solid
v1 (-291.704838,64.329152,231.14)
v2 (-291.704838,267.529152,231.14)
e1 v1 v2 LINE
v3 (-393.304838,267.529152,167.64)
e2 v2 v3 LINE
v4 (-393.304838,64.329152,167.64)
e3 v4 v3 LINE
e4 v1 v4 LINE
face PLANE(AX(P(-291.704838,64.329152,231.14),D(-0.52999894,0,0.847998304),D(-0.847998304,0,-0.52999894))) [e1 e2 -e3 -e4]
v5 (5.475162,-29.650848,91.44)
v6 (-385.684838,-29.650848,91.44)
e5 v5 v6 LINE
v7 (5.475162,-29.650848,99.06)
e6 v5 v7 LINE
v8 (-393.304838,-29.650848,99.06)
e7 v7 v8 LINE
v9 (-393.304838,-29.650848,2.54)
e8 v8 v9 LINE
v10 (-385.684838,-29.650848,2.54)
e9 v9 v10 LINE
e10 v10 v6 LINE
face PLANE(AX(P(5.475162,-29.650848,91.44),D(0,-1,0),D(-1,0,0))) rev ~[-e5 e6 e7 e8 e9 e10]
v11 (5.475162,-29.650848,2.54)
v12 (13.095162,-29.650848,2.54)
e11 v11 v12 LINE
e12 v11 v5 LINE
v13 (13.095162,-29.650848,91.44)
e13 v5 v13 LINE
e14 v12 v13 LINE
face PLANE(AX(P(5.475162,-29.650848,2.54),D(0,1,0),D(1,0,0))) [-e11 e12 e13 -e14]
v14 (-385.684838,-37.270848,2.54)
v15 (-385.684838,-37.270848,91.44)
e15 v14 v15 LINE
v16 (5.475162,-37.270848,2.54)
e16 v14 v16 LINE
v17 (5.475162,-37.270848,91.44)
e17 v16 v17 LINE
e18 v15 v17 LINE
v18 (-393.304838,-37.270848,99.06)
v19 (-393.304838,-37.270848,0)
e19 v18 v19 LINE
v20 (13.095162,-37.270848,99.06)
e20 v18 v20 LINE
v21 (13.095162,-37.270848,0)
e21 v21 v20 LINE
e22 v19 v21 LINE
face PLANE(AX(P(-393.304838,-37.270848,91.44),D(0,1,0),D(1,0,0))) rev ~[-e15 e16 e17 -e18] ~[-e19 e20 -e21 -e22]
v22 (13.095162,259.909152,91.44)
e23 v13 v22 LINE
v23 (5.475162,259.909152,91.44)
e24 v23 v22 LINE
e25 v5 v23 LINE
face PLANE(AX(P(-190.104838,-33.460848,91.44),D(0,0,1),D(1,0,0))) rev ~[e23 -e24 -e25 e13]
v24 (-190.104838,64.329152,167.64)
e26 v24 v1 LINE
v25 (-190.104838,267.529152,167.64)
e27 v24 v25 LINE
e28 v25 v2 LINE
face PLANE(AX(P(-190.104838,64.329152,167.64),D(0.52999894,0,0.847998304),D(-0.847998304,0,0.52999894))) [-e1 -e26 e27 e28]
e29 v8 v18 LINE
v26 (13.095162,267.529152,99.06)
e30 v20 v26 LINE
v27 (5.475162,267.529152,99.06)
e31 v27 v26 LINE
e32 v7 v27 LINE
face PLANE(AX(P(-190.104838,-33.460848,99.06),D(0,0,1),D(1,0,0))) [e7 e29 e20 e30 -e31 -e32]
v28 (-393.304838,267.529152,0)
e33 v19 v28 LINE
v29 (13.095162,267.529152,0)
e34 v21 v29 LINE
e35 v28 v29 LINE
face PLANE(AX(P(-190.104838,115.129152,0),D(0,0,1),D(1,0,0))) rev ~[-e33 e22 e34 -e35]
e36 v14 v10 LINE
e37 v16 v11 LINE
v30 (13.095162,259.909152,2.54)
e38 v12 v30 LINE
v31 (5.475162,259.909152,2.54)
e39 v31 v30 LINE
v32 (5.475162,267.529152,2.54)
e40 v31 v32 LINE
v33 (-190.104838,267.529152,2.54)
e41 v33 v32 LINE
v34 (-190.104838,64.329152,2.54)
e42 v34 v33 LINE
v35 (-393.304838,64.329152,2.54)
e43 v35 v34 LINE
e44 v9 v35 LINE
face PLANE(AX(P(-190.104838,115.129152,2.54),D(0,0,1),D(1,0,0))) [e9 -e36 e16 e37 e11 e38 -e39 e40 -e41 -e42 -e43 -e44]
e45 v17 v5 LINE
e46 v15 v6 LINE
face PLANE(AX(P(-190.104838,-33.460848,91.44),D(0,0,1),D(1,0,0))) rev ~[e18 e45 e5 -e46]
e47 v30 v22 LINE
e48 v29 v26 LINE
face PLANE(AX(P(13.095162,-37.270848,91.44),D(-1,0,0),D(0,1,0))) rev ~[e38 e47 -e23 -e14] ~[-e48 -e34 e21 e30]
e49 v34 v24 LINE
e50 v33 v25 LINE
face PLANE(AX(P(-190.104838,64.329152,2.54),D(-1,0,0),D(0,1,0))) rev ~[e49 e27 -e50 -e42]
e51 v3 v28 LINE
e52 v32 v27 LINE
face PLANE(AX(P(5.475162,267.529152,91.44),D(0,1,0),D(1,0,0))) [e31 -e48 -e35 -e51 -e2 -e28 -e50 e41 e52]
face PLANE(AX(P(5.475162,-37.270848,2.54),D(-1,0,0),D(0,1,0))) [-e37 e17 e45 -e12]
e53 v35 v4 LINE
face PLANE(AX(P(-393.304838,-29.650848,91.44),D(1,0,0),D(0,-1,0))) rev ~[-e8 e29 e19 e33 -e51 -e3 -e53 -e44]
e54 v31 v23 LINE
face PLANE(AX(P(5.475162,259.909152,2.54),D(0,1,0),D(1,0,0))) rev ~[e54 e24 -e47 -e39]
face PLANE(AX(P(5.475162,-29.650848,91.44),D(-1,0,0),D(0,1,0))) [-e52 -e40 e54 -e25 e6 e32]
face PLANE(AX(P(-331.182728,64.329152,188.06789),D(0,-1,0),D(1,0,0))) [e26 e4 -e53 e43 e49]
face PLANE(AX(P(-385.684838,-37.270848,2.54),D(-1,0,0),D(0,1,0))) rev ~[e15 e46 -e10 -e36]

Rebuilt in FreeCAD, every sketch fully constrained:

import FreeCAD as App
import Part
import Sketcher
Q = App.Units.Quantity


def add_polygon(sketch, points):
    """Adds a closed chain of lines whose ends are joined by coincident constraints."""
    first, n = sketch.GeometryCount, len(points)
    for a, b in zip(points, points[1:] + points[:1]):
        sketch.addGeometry(Part.LineSegment(App.Vector(*a, 0), App.Vector(*b, 0)), False)
    for i in range(n):
        sketch.addConstraint(Sketcher.Constraint("Coincident", first + i, 2, first + (i + 1) % n, 1))

doc = App.newDocument("Part")
body = doc.addObject("PartDesign::Body", "Body")

sketch1 = body.newObject("Sketcher::SketchObject", "Sketch")
sketch1.AttachmentSupport = (doc.getObject("XY_Plane"), [""])
sketch1.MapMode = "FlatFace"
add_polygon(sketch1, [(-393.304838, 267.529152), (-393.304838, -37.270848), (13.095162, -37.270848), (13.095162, 267.529152)])
sketch1.addConstraint([
    Sketcher.Constraint("Vertical", 0),
    Sketcher.Constraint("Horizontal", 1),
    Sketcher.Constraint("Vertical", 2),
    Sketcher.Constraint("Horizontal", 3),
    Sketcher.Constraint("DistanceX", 1, 1, 1, 2, Q("16 in")),
    Sketcher.Constraint("DistanceY", 0, 2, 0, 1, Q("12 in")),
    Sketcher.Constraint("DistanceX", 0, 2, -1, 1, 393.304838),
    Sketcher.Constraint("DistanceY", -1, 1, 2, 2, 267.529152),
])
pad1 = body.newObject("PartDesign::Pad", "Pad")
pad1.Profile = sketch1
pad1.Length = Q("0.1 in")

sketch2 = body.newObject("Sketcher::SketchObject", "Sketch001")
sketch2.AttachmentSupport = (doc.getObject("XY_Plane"), [""])
sketch2.MapMode = "FlatFace"
sketch2.AttachmentOffset = App.Placement(App.Vector(0, 0, 0.1 * 25.4), App.Rotation())
add_polygon(sketch2, [(-393.304838, -29.650848), (-393.304838, -37.270848), (-385.684838, -37.270848), (-385.684838, -29.650848)])
add_polygon(sketch2, [(5.475162, -29.650848), (5.475162, -37.270848), (13.095162, -37.270848), (13.095162, -29.650848)])
add_polygon(sketch2, [(5.475162, 267.529152), (5.475162, 259.909152), (13.095162, 259.909152), (13.095162, 267.529152)])
sketch2.addConstraint([
    Sketcher.Constraint("Vertical", 0),
    Sketcher.Constraint("Horizontal", 1),
    Sketcher.Constraint("Vertical", 2),
    Sketcher.Constraint("Horizontal", 3),
    Sketcher.Constraint("Vertical", 4),
    Sketcher.Constraint("Horizontal", 5),
    Sketcher.Constraint("Vertical", 6),
    Sketcher.Constraint("Horizontal", 7),
    Sketcher.Constraint("Vertical", 8),
    Sketcher.Constraint("Horizontal", 9),
    Sketcher.Constraint("Vertical", 10),
    Sketcher.Constraint("Horizontal", 11),
    Sketcher.Constraint("Horizontal", 1, 2, 4, 2),
    Sketcher.Constraint("Horizontal", 3, 2, 6, 2),
    Sketcher.Constraint("Vertical", 7, 2, 8, 2),
    Sketcher.Constraint("Vertical", 6, 2, 9, 2),
    Sketcher.Constraint("Equal", 3, 5),
    Sketcher.Constraint("Equal", 11, 0),
    Sketcher.Constraint("Equal", 6, 8),
    Sketcher.Constraint("DistanceX", 1, 1, 1, 2, Q("0.3 in")),
    Sketcher.Constraint("DistanceX", 0, 2, 5, 2, Q("16 in")),
    Sketcher.Constraint("DistanceY", 5, 2, 10, 2, Q("12 in")),
    Sketcher.Constraint("DistanceX", 0, 2, -1, 1, 393.304838),
    Sketcher.Constraint("DistanceY", 2, 2, -1, 1, 29.650848),
])
pad2 = body.newObject("PartDesign::Pad", "Pad001")
pad2.Profile = sketch2
pad2.Length = Q("3.5 in")

sketch3 = body.newObject("Sketcher::SketchObject", "Sketch002")
sketch3.AttachmentSupport = (doc.getObject("XY_Plane"), [""])
sketch3.MapMode = "FlatFace"
sketch3.AttachmentOffset = App.Placement(App.Vector(0, 0, 0.1 * 25.4), App.Rotation())
add_polygon(sketch3, [(-393.304838, 267.529152), (-393.304838, 64.329152), (-190.104838, 64.329152), (-190.104838, 267.529152)])
sketch3.addConstraint([
    Sketcher.Constraint("Vertical", 0),
    Sketcher.Constraint("Horizontal", 1),
    Sketcher.Constraint("Vertical", 2),
    Sketcher.Constraint("Horizontal", 3),
    Sketcher.Constraint("Equal", 3, 0),
    Sketcher.Constraint("DistanceX", 1, 1, 1, 2, Q("8 in")),
    Sketcher.Constraint("DistanceX", 0, 2, -1, 1, 393.304838),
    Sketcher.Constraint("DistanceY", -1, 1, 0, 2, 64.329152),
])
pad3 = body.newObject("PartDesign::Pad", "Pad002")
pad3.Profile = sketch3
pad3.Length = Q("6.5 in")

sketch4 = body.newObject("Sketcher::SketchObject", "Sketch003")
sketch4.AttachmentSupport = (doc.getObject("XZ_Plane"), [""])
sketch4.MapMode = "FlatFace"
sketch4.AttachmentOffset = App.Placement(App.Vector(0, 0, -64.329152), App.Rotation())
add_polygon(sketch4, [(-291.704838, 231.14), (-393.304838, 167.64), (-190.104838, 167.64)])
sketch4.addConstraint([
    Sketcher.Constraint("Horizontal", 1),
    Sketcher.Constraint("Equal", 0, 2),
    Sketcher.Constraint("DistanceX", 1, 1, 1, 2, Q("8 in")),
    Sketcher.Constraint("DistanceY", -1, 1, 0, 2, Q("6.6 in")),
    Sketcher.Constraint("DistanceY", -1, 1, 2, 2, Q("9.1 in")),
    Sketcher.Constraint("DistanceX", 0, 2, -1, 1, 393.304838),
])
pad4 = body.newObject("PartDesign::Pad", "Pad003")
pad4.Profile = sketch4
pad4.Length = Q("8 in")
pad4.Reversed = True

sketch5 = body.newObject("Sketcher::SketchObject", "Sketch004")
sketch5.AttachmentSupport = (doc.getObject("XY_Plane"), [""])
sketch5.MapMode = "FlatFace"
sketch5.AttachmentOffset = App.Placement(App.Vector(0, 0, 3.6 * 25.4), App.Rotation())
add_polygon(sketch5, [(-393.304838, -37.270848), (13.095162, -37.270848), (13.095162, 267.529152), (5.475162, 267.529152), (5.475162, -29.650848), (-393.304838, -29.650848)])
sketch5.addConstraint([
    Sketcher.Constraint("Horizontal", 0),
    Sketcher.Constraint("Vertical", 1),
    Sketcher.Constraint("Horizontal", 2),
    Sketcher.Constraint("Vertical", 3),
    Sketcher.Constraint("Horizontal", 4),
    Sketcher.Constraint("Vertical", 5),
    Sketcher.Constraint("Equal", 2, 5),
    Sketcher.Constraint("DistanceX", 0, 1, 0, 2, Q("16 in")),
    Sketcher.Constraint("DistanceY", 1, 1, 1, 2, Q("12 in")),
    Sketcher.Constraint("DistanceX", 2, 2, 2, 1, Q("0.3 in")),
    Sketcher.Constraint("DistanceY", -1, 1, 1, 2, 267.529152),
    Sketcher.Constraint("DistanceX", 4, 2, -1, 1, 393.304838),
])
pad5 = body.newObject("PartDesign::Pad", "Pad004")
pad5.Profile = sketch5
pad5.Length = Q("0.3 in")

doc.recompute()
